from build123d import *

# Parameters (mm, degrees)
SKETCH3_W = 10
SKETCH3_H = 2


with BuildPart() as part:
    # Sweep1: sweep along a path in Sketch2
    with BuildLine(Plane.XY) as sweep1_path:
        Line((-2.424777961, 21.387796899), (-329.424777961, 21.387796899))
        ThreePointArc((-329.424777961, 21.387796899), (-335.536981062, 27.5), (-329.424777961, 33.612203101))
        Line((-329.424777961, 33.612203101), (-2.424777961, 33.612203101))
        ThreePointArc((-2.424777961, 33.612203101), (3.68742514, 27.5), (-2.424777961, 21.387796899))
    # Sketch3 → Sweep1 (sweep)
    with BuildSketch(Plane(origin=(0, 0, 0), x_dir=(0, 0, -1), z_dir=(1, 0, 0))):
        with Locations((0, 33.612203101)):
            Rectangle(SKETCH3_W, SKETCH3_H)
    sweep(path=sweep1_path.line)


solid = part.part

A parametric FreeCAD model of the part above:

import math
import FreeCAD as App
import Part
import Sketcher

doc = App.newDocument("Part")
body = doc.addObject("PartDesign::Body", "Body")

# Sketch on YZ plane
sketch1 = doc.addObject("Sketcher::SketchObject", "Sketch")
body.addObject(sketch1)
sketch1.AttachmentSupport = (doc.YZ_Plane, [""])
sketch1.MapMode = "FlatFace"
sketch1.addGeometry([
    Part.LineSegment(App.Vector(34.6, 5, 0), App.Vector(32.6, 5, 0)),
    Part.LineSegment(App.Vector(32.6, 5, 0), App.Vector(32.6, -5, 0)),
    Part.LineSegment(App.Vector(32.6, -5, 0), App.Vector(34.6, -5, 0)),
    Part.LineSegment(App.Vector(34.6, -5, 0), App.Vector(34.6, 5, 0)),
], False)
sketch1.addConstraint([
    Sketcher.Constraint("Coincident", 0, 2, 1, 1),
    Sketcher.Constraint("Coincident", 1, 2, 2, 1),
    Sketcher.Constraint("Coincident", 2, 2, 3, 1),
    Sketcher.Constraint("Coincident", 3, 2, 0, 1),
    Sketcher.Constraint("Horizontal", 0),
    Sketcher.Constraint("Vertical", 1),
    Sketcher.Constraint("Horizontal", 2),
    Sketcher.Constraint("Vertical", 3),
    Sketcher.Constraint("DistanceX", 0, 2, 0, 1, 2.0),
    Sketcher.Constraint("DistanceY", 1, 2, 1, 1, 10.0),
    Sketcher.Constraint("DistanceY", -1, 1, 0, 2, 5.0),
    Sketcher.Constraint("DistanceX", -1, 1, 0, 2, 32.612203),
])

# Sketch on XY plane
sketch2 = doc.addObject("Sketcher::SketchObject", "Sketch001")
body.addObject(sketch2)
sketch2.AttachmentSupport = (doc.XY_Plane, [""])
sketch2.MapMode = "FlatFace"
sketch2.addGeometry([
    Part.LineSegment(App.Vector(-2, 21, 0), App.Vector(-329, 21, 0)),
    Part.ArcOfCircle(Part.Circle(App.Vector(-329, 28, 0), App.Vector(0, 0, 1), 6), math.radians(90), math.radians(270)),
    Part.LineSegment(App.Vector(-329, 34, 0), App.Vector(-2, 34, 0)),
    Part.ArcOfCircle(Part.Circle(App.Vector(-2, 28, 0), App.Vector(0, 0, 1), 6), math.radians(-90), math.radians(90)),
], False)
sketch2.addConstraint([
    Sketcher.Constraint("Tangent", 0, 2, 1, 2),
    Sketcher.Constraint("Tangent", 1, 1, 2, 1),
    Sketcher.Constraint("Tangent", 2, 2, 3, 2),
    Sketcher.Constraint("Tangent", 3, 1, 0, 1),
    Sketcher.Constraint("Horizontal", 0),
    Sketcher.Constraint("Horizontal", 2),
    Sketcher.Constraint("DistanceX", 0, 2, 0, 1, 327.0),
    Sketcher.Constraint("DistanceY", -1, 1, 1, 3, 27.5),
    Sketcher.Constraint("Radius", 1, 6.112203),
    Sketcher.Constraint("DistanceX", 1, 3, -1, 1, 329.424778),
])
doc.recompute()

additivepipe = doc.addObject("PartDesign::AdditivePipe", "AdditivePipe")
body.addObject(additivepipe)
additivepipe.Profile = sketch1
additivepipe.Spine = (sketch2, ["Edge1", "Edge2", "Edge3", "Edge4"])

doc.recompute()
